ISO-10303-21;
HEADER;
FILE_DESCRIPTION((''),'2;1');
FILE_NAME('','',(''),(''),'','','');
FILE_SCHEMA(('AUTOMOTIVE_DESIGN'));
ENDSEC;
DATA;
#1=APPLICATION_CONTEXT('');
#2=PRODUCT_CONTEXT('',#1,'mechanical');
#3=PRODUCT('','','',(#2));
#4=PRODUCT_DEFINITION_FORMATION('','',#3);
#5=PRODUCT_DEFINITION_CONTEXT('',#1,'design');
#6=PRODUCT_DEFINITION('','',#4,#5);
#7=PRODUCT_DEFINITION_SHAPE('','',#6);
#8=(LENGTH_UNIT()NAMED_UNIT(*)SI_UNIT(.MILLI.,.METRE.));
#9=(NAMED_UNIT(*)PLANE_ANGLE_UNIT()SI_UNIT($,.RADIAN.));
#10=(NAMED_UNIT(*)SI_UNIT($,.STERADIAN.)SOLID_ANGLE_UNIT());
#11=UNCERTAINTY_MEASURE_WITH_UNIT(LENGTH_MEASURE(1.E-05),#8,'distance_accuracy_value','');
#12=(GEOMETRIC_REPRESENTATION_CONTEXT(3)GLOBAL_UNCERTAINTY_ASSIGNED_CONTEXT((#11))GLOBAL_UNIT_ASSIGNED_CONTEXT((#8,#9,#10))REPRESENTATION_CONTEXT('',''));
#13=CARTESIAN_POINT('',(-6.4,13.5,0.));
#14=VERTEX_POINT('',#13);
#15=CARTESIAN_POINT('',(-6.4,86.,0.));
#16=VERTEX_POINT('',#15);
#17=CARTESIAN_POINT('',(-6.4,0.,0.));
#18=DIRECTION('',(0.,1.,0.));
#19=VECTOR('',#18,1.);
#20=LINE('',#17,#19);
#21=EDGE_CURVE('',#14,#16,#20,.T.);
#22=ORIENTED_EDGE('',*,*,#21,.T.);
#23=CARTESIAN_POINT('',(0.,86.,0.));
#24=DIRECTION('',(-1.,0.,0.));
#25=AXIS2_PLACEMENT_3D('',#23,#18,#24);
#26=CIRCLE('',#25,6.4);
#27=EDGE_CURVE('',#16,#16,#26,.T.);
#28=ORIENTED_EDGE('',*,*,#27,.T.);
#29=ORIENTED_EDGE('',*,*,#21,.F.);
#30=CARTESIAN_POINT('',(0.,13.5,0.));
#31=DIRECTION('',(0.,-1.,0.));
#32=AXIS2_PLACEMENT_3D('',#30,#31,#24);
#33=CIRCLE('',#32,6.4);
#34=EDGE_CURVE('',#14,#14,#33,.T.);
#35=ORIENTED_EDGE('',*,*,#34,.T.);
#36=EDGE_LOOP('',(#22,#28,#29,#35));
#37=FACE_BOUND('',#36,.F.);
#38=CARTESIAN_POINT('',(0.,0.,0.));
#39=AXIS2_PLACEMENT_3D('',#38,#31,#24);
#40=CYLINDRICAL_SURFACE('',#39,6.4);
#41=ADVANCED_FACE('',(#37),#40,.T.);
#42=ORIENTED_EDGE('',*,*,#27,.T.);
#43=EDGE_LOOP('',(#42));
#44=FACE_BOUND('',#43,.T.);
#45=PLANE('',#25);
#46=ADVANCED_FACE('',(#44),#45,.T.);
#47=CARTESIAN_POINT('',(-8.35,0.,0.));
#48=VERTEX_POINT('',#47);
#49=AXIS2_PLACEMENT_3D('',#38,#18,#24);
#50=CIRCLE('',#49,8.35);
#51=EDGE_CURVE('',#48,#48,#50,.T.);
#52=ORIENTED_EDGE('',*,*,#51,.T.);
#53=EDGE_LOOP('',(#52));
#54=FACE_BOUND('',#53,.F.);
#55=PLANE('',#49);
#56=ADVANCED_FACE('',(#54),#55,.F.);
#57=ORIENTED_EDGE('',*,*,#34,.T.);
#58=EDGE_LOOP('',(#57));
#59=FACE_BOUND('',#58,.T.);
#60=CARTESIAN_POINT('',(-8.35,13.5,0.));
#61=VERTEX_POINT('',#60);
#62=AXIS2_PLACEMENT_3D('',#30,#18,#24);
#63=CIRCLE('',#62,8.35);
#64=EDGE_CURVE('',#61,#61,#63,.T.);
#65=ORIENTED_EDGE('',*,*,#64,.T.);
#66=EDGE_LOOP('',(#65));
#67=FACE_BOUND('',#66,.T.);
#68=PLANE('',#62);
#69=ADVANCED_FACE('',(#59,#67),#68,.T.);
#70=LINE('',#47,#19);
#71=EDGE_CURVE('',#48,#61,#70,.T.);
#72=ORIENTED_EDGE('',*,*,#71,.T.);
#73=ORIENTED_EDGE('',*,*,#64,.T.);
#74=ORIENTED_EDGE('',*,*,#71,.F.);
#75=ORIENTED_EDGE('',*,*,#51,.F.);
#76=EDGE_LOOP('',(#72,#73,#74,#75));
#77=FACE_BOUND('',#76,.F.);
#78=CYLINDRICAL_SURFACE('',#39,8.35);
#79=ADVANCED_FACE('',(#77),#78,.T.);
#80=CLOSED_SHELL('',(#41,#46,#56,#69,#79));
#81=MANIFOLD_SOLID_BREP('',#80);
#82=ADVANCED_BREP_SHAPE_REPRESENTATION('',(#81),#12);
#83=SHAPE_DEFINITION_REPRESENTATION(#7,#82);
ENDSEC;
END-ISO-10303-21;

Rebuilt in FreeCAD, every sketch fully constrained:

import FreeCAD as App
import Part
import Sketcher

V = App.Vector

doc = App.newDocument("Part")
body = doc.addObject("PartDesign::Body", "Body")

# Sketch on XZ plane
sketch1 = doc.addObject("Sketcher::SketchObject", "Sketch")
body.addObject(sketch1)
sketch1.AttachmentSupport = (doc.XZ_Plane, [""])
sketch1.MapMode = "FlatFace"
sketch1.addGeometry(Part.Circle(V(0, 0, 0), V(0, 0, 1), 6.4), False)
sketch1.addConstraint([
    Sketcher.Constraint("Coincident", 0, 3, -1, 1),
    Sketcher.Constraint("Diameter", 0, 12.8),
])
pad1 = doc.addObject("PartDesign::Pad", "Pad")
body.addObject(pad1)
pad1.Profile = sketch1
pad1.Length = 86
pad1.Reversed = True

# Sketch on XZ plane
sketch2 = doc.addObject("Sketcher::SketchObject", "Sketch001")
body.addObject(sketch2)
sketch2.AttachmentSupport = (doc.XZ_Plane, [""])
sketch2.MapMode = "FlatFace"
sketch2.addGeometry(Part.Circle(V(0, 0, 0), V(0, 0, 1), 8.35), False)
sketch2.addConstraint([
    Sketcher.Constraint("Coincident", 0, 3, -1, 1),
    Sketcher.Constraint("Diameter", 0, 16.7),
])
pad2 = doc.addObject("PartDesign::Pad", "Pad001")
body.addObject(pad2)
pad2.Profile = sketch2
pad2.Length = 13.5
pad2.Reversed = True

doc.recompute()
